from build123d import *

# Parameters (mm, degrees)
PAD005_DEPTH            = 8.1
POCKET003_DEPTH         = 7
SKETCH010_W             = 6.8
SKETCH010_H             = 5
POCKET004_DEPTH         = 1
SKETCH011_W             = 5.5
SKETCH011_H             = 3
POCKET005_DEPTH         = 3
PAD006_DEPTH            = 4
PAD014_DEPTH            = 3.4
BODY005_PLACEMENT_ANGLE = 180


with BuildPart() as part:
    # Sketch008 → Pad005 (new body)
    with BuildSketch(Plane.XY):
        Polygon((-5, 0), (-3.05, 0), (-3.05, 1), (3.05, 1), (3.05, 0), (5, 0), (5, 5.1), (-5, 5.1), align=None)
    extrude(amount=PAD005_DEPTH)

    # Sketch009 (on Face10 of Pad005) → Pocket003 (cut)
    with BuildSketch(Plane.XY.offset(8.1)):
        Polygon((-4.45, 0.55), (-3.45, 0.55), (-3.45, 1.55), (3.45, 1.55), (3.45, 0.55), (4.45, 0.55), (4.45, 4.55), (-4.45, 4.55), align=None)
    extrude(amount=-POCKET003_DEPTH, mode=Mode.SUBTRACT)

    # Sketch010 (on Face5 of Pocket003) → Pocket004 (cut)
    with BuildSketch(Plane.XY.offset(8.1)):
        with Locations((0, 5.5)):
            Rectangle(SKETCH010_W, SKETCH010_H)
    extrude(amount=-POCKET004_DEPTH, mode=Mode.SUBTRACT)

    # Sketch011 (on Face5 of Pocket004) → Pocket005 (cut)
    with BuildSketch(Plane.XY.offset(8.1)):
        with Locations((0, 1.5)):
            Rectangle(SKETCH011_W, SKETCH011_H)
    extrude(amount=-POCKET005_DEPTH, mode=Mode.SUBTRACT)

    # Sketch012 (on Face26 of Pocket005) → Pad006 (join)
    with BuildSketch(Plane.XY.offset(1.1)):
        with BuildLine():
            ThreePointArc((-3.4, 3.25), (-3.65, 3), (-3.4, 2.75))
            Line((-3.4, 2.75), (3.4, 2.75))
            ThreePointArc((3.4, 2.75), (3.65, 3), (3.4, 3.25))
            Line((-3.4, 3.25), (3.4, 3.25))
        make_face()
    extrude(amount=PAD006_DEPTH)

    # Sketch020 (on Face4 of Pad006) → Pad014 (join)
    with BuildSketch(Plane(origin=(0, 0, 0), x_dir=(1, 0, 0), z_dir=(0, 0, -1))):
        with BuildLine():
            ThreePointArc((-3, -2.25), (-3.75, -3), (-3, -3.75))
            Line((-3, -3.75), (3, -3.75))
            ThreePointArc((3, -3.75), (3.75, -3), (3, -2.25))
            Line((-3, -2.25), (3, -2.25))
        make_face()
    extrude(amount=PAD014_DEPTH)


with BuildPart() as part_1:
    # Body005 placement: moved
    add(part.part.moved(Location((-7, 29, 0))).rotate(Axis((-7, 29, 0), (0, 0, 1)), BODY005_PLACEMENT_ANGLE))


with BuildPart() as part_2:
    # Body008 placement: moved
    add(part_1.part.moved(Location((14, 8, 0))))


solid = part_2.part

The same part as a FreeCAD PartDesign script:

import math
import FreeCAD as App
import Part
import Sketcher
from FreeCAD import Vector
Q = App.Units.Quantity

doc = App.newDocument("Part")
body = doc.addObject("PartDesign::Body", "Body")

# Sketch on XY plane
sketch1 = doc.addObject("Sketcher::SketchObject", "Sketch")
body.addObject(sketch1)
sketch1.AttachmentSupport = (doc.XY_Plane, [""])
sketch1.MapMode = "FlatFace"
sketch1.addGeometry(Part.LineSegment(Vector(-5, 0, 0), Vector(-3, 0, 0)), False)
sketch1.addGeometry(Part.LineSegment(Vector(-3, 0, 0), Vector(-3, 1, 0)), False)
sketch1.addGeometry(Part.LineSegment(Vector(-3, 1, 0), Vector(3, 1, 0)), False)
sketch1.addGeometry(Part.LineSegment(Vector(3, 1, 0), Vector(3, 0, 0)), False)
sketch1.addGeometry(Part.LineSegment(Vector(3, 0, 0), Vector(5, 0, 0)), False)
sketch1.addGeometry(Part.LineSegment(Vector(5, 0, 0), Vector(5, 5.1, 0)), False)
sketch1.addGeometry(Part.LineSegment(Vector(5, 5.1, 0), Vector(-5, 5.1, 0)), False)
sketch1.addGeometry(Part.LineSegment(Vector(-5, 5.1, 0), Vector(-5, 0, 0)), False)
sketch1.addConstraint(Sketcher.Constraint("Coincident", 0, 2, 1, 1))
sketch1.addConstraint(Sketcher.Constraint("Coincident", 1, 2, 2, 1))
sketch1.addConstraint(Sketcher.Constraint("Coincident", 2, 2, 3, 1))
sketch1.addConstraint(Sketcher.Constraint("Coincident", 3, 2, 4, 1))
sketch1.addConstraint(Sketcher.Constraint("Coincident", 4, 2, 5, 1))
sketch1.addConstraint(Sketcher.Constraint("Coincident", 5, 2, 6, 1))
sketch1.addConstraint(Sketcher.Constraint("Coincident", 6, 2, 7, 1))
sketch1.addConstraint(Sketcher.Constraint("Coincident", 7, 2, 0, 1))
sketch1.addConstraint(Sketcher.Constraint("Horizontal", 0))
sketch1.addConstraint(Sketcher.Constraint("Vertical", 1))
sketch1.addConstraint(Sketcher.Constraint("Horizontal", 2))
sketch1.addConstraint(Sketcher.Constraint("Vertical", 3))
sketch1.addConstraint(Sketcher.Constraint("Horizontal", 4))
sketch1.addConstraint(Sketcher.Constraint("Vertical", 5))
sketch1.addConstraint(Sketcher.Constraint("Horizontal", 6))
sketch1.addConstraint(Sketcher.Constraint("Vertical", 7))
sketch1.addConstraint(Sketcher.Constraint("Symmetric", 0, 2, 3, 2, -1, 1))
sketch1.addConstraint(Sketcher.Constraint("Symmetric", 4, 2, 7, 2, -2))
sketch1.addConstraint(Sketcher.Constraint("DistanceX", 6, 2, 6, 1, Q("10 mm")))
sketch1.addConstraint(Sketcher.Constraint("DistanceY", 1, 1, 1, 2, Q("1 mm")))
sketch1.addConstraint(Sketcher.Constraint("DistanceX", 2, 1, 2, 2, Q("6.1 mm")))
sketch1.addConstraint(Sketcher.Constraint("DistanceY", 5, 1, 5, 2, Q("5.1 mm")))
pad1 = doc.addObject("PartDesign::Pad", "Pad")
body.addObject(pad1)
pad1.Profile = sketch1
pad1.Length = 8.1

# Sketch on XY plane
sketch2 = doc.addObject("Sketcher::SketchObject", "Sketch001")
body.addObject(sketch2)
sketch2.AttachmentSupport = (doc.XY_Plane, [""])
sketch2.MapMode = "FlatFace"
sketch2.AttachmentOffset = App.Placement(Vector(0, 0, 8.1), App.Rotation())
sketch2.addGeometry(Part.LineSegment(Vector(-4.5, 0.6, 0), Vector(-3.5, 0.6, 0)), False)
sketch2.addGeometry(Part.LineSegment(Vector(-3.5, 0.6, 0), Vector(-3.5, 1.6, 0)), False)
sketch2.addGeometry(Part.LineSegment(Vector(-3.5, 1.6, 0), Vector(3.5, 1.6, 0)), False)
sketch2.addGeometry(Part.LineSegment(Vector(3.5, 1.6, 0), Vector(3.5, 0.6, 0)), False)
sketch2.addGeometry(Part.LineSegment(Vector(3.5, 0.6, 0), Vector(4.5, 0.6, 0)), False)
sketch2.addGeometry(Part.LineSegment(Vector(4.5, 0.6, 0), Vector(4.5, 4.5, 0)), False)
sketch2.addGeometry(Part.LineSegment(Vector(4.5, 4.5, 0), Vector(-4.5, 4.5, 0)), False)
sketch2.addGeometry(Part.LineSegment(Vector(-4.5, 4.5, 0), Vector(-4.5, 0.6, 0)), False)
sketch2.addConstraint(Sketcher.Constraint("Coincident", 0, 2, 1, 1))
sketch2.addConstraint(Sketcher.Constraint("Coincident", 1, 2, 2, 1))
sketch2.addConstraint(Sketcher.Constraint("Coincident", 2, 2, 3, 1))
sketch2.addConstraint(Sketcher.Constraint("Coincident", 3, 2, 4, 1))
sketch2.addConstraint(Sketcher.Constraint("Coincident", 4, 2, 5, 1))
sketch2.addConstraint(Sketcher.Constraint("Coincident", 5, 2, 6, 1))
sketch2.addConstraint(Sketcher.Constraint("Coincident", 6, 2, 7, 1))
sketch2.addConstraint(Sketcher.Constraint("Coincident", 7, 2, 0, 1))
sketch2.addConstraint(Sketcher.Constraint("Horizontal", 0))
sketch2.addConstraint(Sketcher.Constraint("Vertical", 1))
sketch2.addConstraint(Sketcher.Constraint("Horizontal", 2))
sketch2.addConstraint(Sketcher.Constraint("Vertical", 3))
sketch2.addConstraint(Sketcher.Constraint("Horizontal", 4))
sketch2.addConstraint(Sketcher.Constraint("Vertical", 5))
sketch2.addConstraint(Sketcher.Constraint("Horizontal", 6))
sketch2.addConstraint(Sketcher.Constraint("Vertical", 7))
sketch2.addConstraint(Sketcher.Constraint("Symmetric", 0, 2, 3, 2, -2))
sketch2.addConstraint(Sketcher.Constraint("Equal", 0, 4))
sketch2.addConstraint(Sketcher.Constraint("Equal", 4, 1))
sketch2.addConstraint(Sketcher.Constraint("DistanceX", 0, 1, 0, 2, Q("1 mm")))
sketch2.addConstraint(Sketcher.Constraint("DistanceY", 5, 1, 5, 2, Q("4 mm")))
sketch2.addConstraint(Sketcher.Constraint("DistanceX", 2, 1, 2, 2, Q("6.9 mm")))
sketch2.addConstraint(Sketcher.Constraint("DistanceY", -1, 1, 0, 2, Q("0.55 mm")))
pocket1 = doc.addObject("PartDesign::Pocket", "Pocket")
body.addObject(pocket1)
pocket1.Profile = sketch2
pocket1.Length = 7

# Sketch on XY plane
sketch3 = doc.addObject("Sketcher::SketchObject", "Sketch002")
body.addObject(sketch3)
sketch3.AttachmentSupport = (doc.XY_Plane, [""])
sketch3.MapMode = "FlatFace"
sketch3.AttachmentOffset = App.Placement(Vector(0, 0, 8.1), App.Rotation())
sketch3.addGeometry(Part.LineSegment(Vector(-3, 8, 0), Vector(-3, 3, 0)), False)
sketch3.addGeometry(Part.LineSegment(Vector(-3, 3, 0), Vector(3, 3, 0)), False)
sketch3.addGeometry(Part.LineSegment(Vector(3, 3, 0), Vector(3, 8, 0)), False)
sketch3.addGeometry(Part.LineSegment(Vector(3, 8, 0), Vector(-3, 8, 0)), False)
sketch3.addConstraint(Sketcher.Constraint("Coincident", 0, 2, 1, 1))
sketch3.addConstraint(Sketcher.Constraint("Coincident", 1, 2, 2, 1))
sketch3.addConstraint(Sketcher.Constraint("Coincident", 2, 2, 3, 1))
sketch3.addConstraint(Sketcher.Constraint("Coincident", 3, 2, 0, 1))
sketch3.addConstraint(Sketcher.Constraint("Vertical", 0))
sketch3.addConstraint(Sketcher.Constraint("Horizontal", 1))
sketch3.addConstraint(Sketcher.Constraint("Vertical", 2))
sketch3.addConstraint(Sketcher.Constraint("Horizontal", 3))
sketch3.addConstraint(Sketcher.Constraint("DistanceY", 0, 2, 0, 1, Q("5 mm")))
sketch3.addConstraint(Sketcher.Constraint("DistanceX", 1, 1, 1, 2, Q("6.8 mm")))
sketch3.addConstraint(Sketcher.Constraint("DistanceY", -1, 1, 0, 2, Q("3 mm")))
sketch3.addConstraint(Sketcher.Constraint("DistanceX", 0, 2, -1, 1, Q("3.4 mm")))
pocket2 = doc.addObject("PartDesign::Pocket", "Pocket001")
body.addObject(pocket2)
pocket2.Profile = sketch3
pocket2.Length = 1

# Sketch on XY plane
sketch4 = doc.addObject("Sketcher::SketchObject", "Sketch003")
body.addObject(sketch4)
sketch4.AttachmentSupport = (doc.XY_Plane, [""])
sketch4.MapMode = "FlatFace"
sketch4.AttachmentOffset = App.Placement(Vector(0, 0, 8.1), App.Rotation())
sketch4.addGeometry(Part.LineSegment(Vector(-2.8, 3, 0), Vector(-2.8, 0, 0)), False)
sketch4.addGeometry(Part.LineSegment(Vector(-2.8, 0, 0), Vector(2.8, 0, 0)), False)
sketch4.addGeometry(Part.LineSegment(Vector(2.8, 0, 0), Vector(2.8, 3, 0)), False)
sketch4.addGeometry(Part.LineSegment(Vector(2.8, 3, 0), Vector(-2.8, 3, 0)), False)
sketch4.addConstraint(Sketcher.Constraint("Coincident", 0, 2, 1, 1))
sketch4.addConstraint(Sketcher.Constraint("Coincident", 1, 2, 2, 1))
sketch4.addConstraint(Sketcher.Constraint("Coincident", 2, 2, 3, 1))
sketch4.addConstraint(Sketcher.Constraint("Coincident", 3, 2, 0, 1))
sketch4.addConstraint(Sketcher.Constraint("Vertical", 0))
sketch4.addConstraint(Sketcher.Constraint("Horizontal", 1))
sketch4.addConstraint(Sketcher.Constraint("Vertical", 2))
sketch4.addConstraint(Sketcher.Constraint("Horizontal", 3))
sketch4.addConstraint(Sketcher.Constraint("Symmetric", 0, 2, 1, 2, -1, 1))
sketch4.addConstraint(Sketcher.Constraint("DistanceY", 0, 2, 0, 1, Q("3 mm")))
sketch4.addConstraint(Sketcher.Constraint("DistanceX", 1, 1, 1, 2, Q("5.5 mm")))
pocket3 = doc.addObject("PartDesign::Pocket", "Pocket002")
body.addObject(pocket3)
pocket3.Profile = sketch4
pocket3.Length = 3

# Sketch on XY plane
sketch5 = doc.addObject("Sketcher::SketchObject", "Sketch004")
body.addObject(sketch5)
sketch5.AttachmentSupport = (doc.XY_Plane, [""])
sketch5.MapMode = "FlatFace"
sketch5.AttachmentOffset = App.Placement(Vector(0, 0, 1.1), App.Rotation())
sketch5.addGeometry(Part.ArcOfCircle(Part.Circle(Vector(-3.4, 3, 0), Vector(0, 0, 1), 0.25), math.radians(90), math.radians(270)), False)
sketch5.addGeometry(Part.LineSegment(Vector(-3.4, 2.75, 0), Vector(3.4, 2.75, 0)), False)
sketch5.addGeometry(Part.ArcOfCircle(Part.Circle(Vector(3.4, 3, 0), Vector(0, 0, 1), 0.25), math.radians(-90), math.radians(90)), False)
sketch5.addGeometry(Part.LineSegment(Vector(3.4, 3.25, 0), Vector(-3.4, 3.25, 0)), False)
sketch5.addConstraint(Sketcher.Constraint("Tangent", 0, 2, 1, 1))
sketch5.addConstraint(Sketcher.Constraint("Tangent", 1, 2, 2, 1))
sketch5.addConstraint(Sketcher.Constraint("Tangent", 2, 2, 3, 1))
sketch5.addConstraint(Sketcher.Constraint("Tangent", 3, 2, 0, 1))
sketch5.addConstraint(Sketcher.Constraint("Horizontal", 1))
sketch5.addConstraint(Sketcher.Constraint("Horizontal", 3))
sketch5.addConstraint(Sketcher.Constraint("Radius", 0, Q("0.25 mm")))
sketch5.addConstraint(Sketcher.Constraint("DistanceX", 1, 1, 1, 2, Q("6.8 mm")))
sketch5.addConstraint(Sketcher.Constraint("DistanceY", -1, 1, 0, 3, Q("3 mm")))
sketch5.addConstraint(Sketcher.Constraint("DistanceX", 0, 3, -1, 1, Q("3.4 mm")))
pad2 = doc.addObject("PartDesign::Pad", "Pad001")
body.addObject(pad2)
pad2.Profile = sketch5
pad2.Length = 4

# Sketch on XY plane
sketch6 = doc.addObject("Sketcher::SketchObject", "Sketch005")
body.addObject(sketch6)
sketch6.AttachmentSupport = (doc.XY_Plane, [""])
sketch6.MapMode = "FlatFace"
sketch6.addGeometry(Part.ArcOfCircle(Part.Circle(Vector(-3, 3, 0), Vector(0, 0, 1), 0.8), math.radians(90), math.radians(270)), False)
sketch6.addGeometry(Part.LineSegment(Vector(-3, 3.8, 0), Vector(3, 3.8, 0)), False)
sketch6.addGeometry(Part.ArcOfCircle(Part.Circle(Vector(3, 3, 0), Vector(0, 0, 1), 0.8), math.radians(-90), math.radians(90)), False)
sketch6.addGeometry(Part.LineSegment(Vector(3, 2.2, 0), Vector(-3, 2.2, 0)), False)
sketch6.addConstraint(Sketcher.Constraint("Tangent", 0, 1, 1, 1))
sketch6.addConstraint(Sketcher.Constraint("Tangent", 1, 2, 2, 2))
sketch6.addConstraint(Sketcher.Constraint("Tangent", 2, 1, 3, 1))
sketch6.addConstraint(Sketcher.Constraint("Tangent", 3, 2, 0, 2))
sketch6.addConstraint(Sketcher.Constraint("Horizontal", 1))
sketch6.addConstraint(Sketcher.Constraint("Horizontal", 3))
sketch6.addConstraint(Sketcher.Constraint("DistanceX", 1, 1, 1, 2, Q("6 mm")))
sketch6.addConstraint(Sketcher.Constraint("Radius", 0, Q("0.75 mm")))
sketch6.addConstraint(Sketcher.Constraint("DistanceX", 0, 3, -1, 1, Q("3 mm")))
sketch6.addConstraint(Sketcher.Constraint("DistanceY", -1, 1, 0, 3, Q("3 mm")))
pad3 = doc.addObject("PartDesign::Pad", "Pad002")
body.addObject(pad3)
pad3.Profile = sketch6
pad3.Length = 3.4
pad3.Reversed = True
body2 = doc.addObject("PartDesign::Body", "Body001")
doc.recompute()

body.Placement = App.Placement(Vector(-7, 29, 0), App.Rotation(Vector(0, 0, 1), 180))
boolean = doc.addObject("PartDesign::Boolean", "Boolean")
body2.addObject(boolean)
boolean.Type = "Fuse"
boolean.addObjects([body])
body3 = doc.addObject("PartDesign::Body", "Body002")
doc.recompute()

body2.Placement = App.Placement(Vector(14, 8, 0), App.Rotation(Vector(0, 0, 1), 0))
boolean2 = doc.addObject("PartDesign::Boolean", "Boolean001")
body3.addObject(boolean2)
boolean2.Type = "Fuse"
boolean2.addObjects([body2])

doc.recompute()
